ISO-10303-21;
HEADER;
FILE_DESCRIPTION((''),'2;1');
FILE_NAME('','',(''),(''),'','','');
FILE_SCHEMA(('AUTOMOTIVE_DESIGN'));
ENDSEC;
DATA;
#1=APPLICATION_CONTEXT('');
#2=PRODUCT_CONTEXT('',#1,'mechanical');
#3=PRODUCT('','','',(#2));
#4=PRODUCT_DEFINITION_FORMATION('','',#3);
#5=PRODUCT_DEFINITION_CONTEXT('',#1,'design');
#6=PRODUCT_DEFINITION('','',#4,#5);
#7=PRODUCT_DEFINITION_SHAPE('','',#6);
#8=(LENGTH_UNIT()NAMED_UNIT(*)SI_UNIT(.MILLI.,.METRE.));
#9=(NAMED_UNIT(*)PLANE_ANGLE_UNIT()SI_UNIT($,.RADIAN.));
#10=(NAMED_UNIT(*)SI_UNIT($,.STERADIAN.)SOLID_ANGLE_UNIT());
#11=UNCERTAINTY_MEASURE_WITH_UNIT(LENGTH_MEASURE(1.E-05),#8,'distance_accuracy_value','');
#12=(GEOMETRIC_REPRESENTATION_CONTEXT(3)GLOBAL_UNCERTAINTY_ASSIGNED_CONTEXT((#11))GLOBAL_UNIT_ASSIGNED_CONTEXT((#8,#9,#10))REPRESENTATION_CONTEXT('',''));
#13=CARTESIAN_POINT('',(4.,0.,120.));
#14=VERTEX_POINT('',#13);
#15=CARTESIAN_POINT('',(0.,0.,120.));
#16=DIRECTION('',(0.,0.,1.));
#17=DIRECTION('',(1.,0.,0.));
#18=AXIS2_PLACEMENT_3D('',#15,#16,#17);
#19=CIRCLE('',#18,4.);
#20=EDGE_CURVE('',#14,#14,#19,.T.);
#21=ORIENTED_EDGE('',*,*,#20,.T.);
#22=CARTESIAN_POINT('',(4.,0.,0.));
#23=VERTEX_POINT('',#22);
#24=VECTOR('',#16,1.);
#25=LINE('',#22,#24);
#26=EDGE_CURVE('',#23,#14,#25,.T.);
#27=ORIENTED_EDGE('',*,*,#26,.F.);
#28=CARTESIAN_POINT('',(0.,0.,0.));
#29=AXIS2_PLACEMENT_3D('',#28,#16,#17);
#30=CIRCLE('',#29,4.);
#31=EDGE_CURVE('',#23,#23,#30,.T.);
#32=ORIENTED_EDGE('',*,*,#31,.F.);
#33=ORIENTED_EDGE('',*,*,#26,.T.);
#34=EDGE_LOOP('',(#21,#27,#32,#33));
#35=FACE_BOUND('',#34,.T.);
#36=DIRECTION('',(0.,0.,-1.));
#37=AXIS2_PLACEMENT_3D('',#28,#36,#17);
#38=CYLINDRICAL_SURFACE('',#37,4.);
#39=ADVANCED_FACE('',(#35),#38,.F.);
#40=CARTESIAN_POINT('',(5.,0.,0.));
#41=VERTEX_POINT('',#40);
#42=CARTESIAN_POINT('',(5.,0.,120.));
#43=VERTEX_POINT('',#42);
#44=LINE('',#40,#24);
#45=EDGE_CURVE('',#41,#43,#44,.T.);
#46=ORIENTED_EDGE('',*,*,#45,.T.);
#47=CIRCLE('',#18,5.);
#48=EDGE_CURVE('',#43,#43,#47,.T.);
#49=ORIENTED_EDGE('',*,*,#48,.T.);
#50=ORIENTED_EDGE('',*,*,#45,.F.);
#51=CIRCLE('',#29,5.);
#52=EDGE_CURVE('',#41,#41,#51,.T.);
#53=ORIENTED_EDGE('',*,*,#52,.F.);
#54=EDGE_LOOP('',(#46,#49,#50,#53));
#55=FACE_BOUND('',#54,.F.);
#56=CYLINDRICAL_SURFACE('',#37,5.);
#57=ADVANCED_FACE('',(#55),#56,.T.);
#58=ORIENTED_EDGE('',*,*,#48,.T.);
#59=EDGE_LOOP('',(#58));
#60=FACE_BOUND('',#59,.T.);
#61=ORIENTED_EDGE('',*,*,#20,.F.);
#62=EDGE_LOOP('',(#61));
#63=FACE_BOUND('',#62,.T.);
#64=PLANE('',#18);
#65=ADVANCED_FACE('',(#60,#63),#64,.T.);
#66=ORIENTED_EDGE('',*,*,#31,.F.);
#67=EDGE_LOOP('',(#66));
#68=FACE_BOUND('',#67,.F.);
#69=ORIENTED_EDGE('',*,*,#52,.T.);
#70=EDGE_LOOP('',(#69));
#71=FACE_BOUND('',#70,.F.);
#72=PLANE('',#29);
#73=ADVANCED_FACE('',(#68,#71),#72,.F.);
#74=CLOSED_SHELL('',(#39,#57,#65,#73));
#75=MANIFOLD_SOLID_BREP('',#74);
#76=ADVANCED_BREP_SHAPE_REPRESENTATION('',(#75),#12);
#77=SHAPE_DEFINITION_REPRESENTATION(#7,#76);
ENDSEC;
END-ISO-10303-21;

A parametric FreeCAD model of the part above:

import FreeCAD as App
import Part
import Sketcher
from FreeCAD import Vector

doc = App.newDocument("Part")
body = doc.addObject("PartDesign::Body", "Body")

# Sketch on XY plane
sketch1 = body.newObject("Sketcher::SketchObject", "Sketch")
sketch1.AttachmentSupport = (doc.getObject("XY_Plane"), [""])
sketch1.MapMode = "FlatFace"
sketch1.addGeometry([
    Part.Circle(Vector(0, 0, 0), Vector(0, 0, 1), 5),
    Part.Circle(Vector(0, 0, 0), Vector(0, 0, 1), 4),
], False)
sketch1.addConstraint([
    Sketcher.Constraint("Coincident", 0, 3, -1, 1),
    Sketcher.Constraint("Coincident", 1, 3, -1, 1),
    Sketcher.Constraint("Diameter", 0, 10.0),
    Sketcher.Constraint("Diameter", 1, 8.0),
])
pad1 = body.newObject("PartDesign::Pad", "Pad")
pad1.Profile = sketch1
pad1.Length = 120

doc.recompute()
